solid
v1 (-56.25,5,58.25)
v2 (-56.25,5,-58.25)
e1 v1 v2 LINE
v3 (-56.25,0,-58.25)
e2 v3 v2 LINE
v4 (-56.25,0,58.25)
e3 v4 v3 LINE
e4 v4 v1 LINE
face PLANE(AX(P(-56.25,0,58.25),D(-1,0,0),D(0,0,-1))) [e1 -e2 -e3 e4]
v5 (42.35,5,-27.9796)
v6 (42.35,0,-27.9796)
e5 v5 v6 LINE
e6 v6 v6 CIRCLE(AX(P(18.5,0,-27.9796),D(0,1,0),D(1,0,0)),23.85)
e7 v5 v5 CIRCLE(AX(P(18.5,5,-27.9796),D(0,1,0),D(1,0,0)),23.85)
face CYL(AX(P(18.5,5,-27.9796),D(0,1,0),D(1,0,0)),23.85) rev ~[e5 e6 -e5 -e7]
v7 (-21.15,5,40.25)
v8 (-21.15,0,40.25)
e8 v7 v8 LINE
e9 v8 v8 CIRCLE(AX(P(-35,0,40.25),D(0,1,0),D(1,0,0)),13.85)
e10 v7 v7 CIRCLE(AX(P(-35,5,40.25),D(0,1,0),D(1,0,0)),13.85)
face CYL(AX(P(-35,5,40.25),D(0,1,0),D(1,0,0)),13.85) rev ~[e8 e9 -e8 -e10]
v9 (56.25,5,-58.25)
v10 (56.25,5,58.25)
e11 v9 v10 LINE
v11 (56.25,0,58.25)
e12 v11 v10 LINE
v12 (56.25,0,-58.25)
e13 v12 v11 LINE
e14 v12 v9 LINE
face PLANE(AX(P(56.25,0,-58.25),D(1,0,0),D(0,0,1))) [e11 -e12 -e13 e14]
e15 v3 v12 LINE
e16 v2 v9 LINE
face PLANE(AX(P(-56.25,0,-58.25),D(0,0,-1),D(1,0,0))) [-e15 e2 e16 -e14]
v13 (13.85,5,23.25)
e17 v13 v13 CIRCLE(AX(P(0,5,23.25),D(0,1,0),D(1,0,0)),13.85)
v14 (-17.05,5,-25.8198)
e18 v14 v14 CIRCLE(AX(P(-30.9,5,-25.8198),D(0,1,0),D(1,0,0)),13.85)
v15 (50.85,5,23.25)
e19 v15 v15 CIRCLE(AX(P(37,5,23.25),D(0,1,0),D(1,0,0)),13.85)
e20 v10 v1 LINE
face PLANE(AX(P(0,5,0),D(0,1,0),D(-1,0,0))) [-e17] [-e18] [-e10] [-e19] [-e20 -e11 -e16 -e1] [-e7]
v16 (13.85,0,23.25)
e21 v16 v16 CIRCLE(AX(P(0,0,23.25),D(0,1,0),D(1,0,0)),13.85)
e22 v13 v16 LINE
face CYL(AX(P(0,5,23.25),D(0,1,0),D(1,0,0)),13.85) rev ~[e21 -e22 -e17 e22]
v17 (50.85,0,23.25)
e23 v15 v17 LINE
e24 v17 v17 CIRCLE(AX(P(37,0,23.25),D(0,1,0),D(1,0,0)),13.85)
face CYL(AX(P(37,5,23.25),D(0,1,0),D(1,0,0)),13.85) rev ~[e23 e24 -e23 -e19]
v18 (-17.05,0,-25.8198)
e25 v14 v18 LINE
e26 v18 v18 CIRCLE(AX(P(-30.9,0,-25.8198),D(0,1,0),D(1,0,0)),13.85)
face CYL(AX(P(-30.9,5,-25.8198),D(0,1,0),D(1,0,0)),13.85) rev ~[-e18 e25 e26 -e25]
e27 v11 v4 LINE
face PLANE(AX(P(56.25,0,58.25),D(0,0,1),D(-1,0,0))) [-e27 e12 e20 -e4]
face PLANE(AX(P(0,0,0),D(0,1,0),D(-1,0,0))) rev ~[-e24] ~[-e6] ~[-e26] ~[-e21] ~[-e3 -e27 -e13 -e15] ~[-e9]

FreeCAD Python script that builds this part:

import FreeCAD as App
import Part
import Sketcher
Q = App.Units.Quantity

doc = App.newDocument("Part")
body = doc.addObject("PartDesign::Body", "Body")

# Sketch on XZ plane
sketch1 = body.newObject("Sketcher::SketchObject", "Sketch")
sketch1.AttachmentSupport = (doc.getObject("XZ_Plane"), [""])
sketch1.MapMode = "FlatFace"
sketch1.addGeometry([
    Part.LineSegment(App.Vector(-56.25, 58.25, 0), App.Vector(56.25, 58.25, 0)),
    Part.LineSegment(App.Vector(56.25, 58.25, 0), App.Vector(56.25, -58.25, 0)),
    Part.LineSegment(App.Vector(56.25, -58.25, 0), App.Vector(-56.25, -58.25, 0)),
    Part.LineSegment(App.Vector(-56.25, -58.25, 0), App.Vector(-56.25, 58.25, 0)),
], False)
sketch1.addConstraint([
    Sketcher.Constraint("Coincident", 0, 2, 1, 1),
    Sketcher.Constraint("Coincident", 1, 2, 2, 1),
    Sketcher.Constraint("Coincident", 2, 2, 3, 1),
    Sketcher.Constraint("Coincident", 3, 2, 0, 1),
    Sketcher.Constraint("Horizontal", 0),
    Sketcher.Constraint("Vertical", 1),
    Sketcher.Constraint("Horizontal", 2),
    Sketcher.Constraint("Vertical", 3),
    Sketcher.Constraint("Symmetric", 0, 2, 2, 2, -1, 1),
    Sketcher.Constraint("DistanceX", 0, 1, 0, 2, Q("112.5 mm")),
    Sketcher.Constraint("DistanceY", 1, 2, 1, 1, Q("116.5 mm")),
])
pad1 = body.newObject("PartDesign::Pad", "Pad")
pad1.Profile = sketch1
pad1.Length = 5
pad1.Reversed = True

# Sketch on XZ plane
sketch2 = body.newObject("Sketcher::SketchObject", "Sketch001")
sketch2.AttachmentSupport = (doc.getObject("XZ_Plane"), [""])
sketch2.MapMode = "FlatFace"
sketch2.AttachmentOffset = App.Placement(App.Vector(0, 0, -5), App.Rotation())
sketch2.addGeometry([
    Part.Circle(App.Vector(18.5, -27.9796, 0), App.Vector(0, 0, 1), 23.85),  # 0
    Part.Circle(App.Vector(37, 23.25, 0), App.Vector(0, 0, 1), 13.85),  # 1
    Part.Circle(App.Vector(-35, 40.25, 0), App.Vector(0, 0, 1), 13.85),  # 2
    Part.Circle(App.Vector(-30.9, -25.8198, 0), App.Vector(0, 0, 1), 13.85),  # 3
    Part.Circle(App.Vector(0, 23.25, 0), App.Vector(0, 0, 1), 13.85),  # 4
], False)
sketch2.addConstraint([
    Sketcher.Constraint("Equal", 1, 2),
    Sketcher.Constraint("Equal", 2, 3),
    Sketcher.Constraint("Equal", 3, 4),
    Sketcher.Constraint("PointOnObject", 4, 3, -2),
    Sketcher.Constraint("Horizontal", 1, 3, 4, 3),
    Sketcher.Constraint("Diameter", 0, Q("47.7 mm")),
    Sketcher.Constraint("Diameter", 1, Q("27.7 mm")),
    Sketcher.Constraint("DistanceX", -1, 1, 1, 3, Q("37 mm")),
    Sketcher.Constraint("DistanceX", 2, 3, -1, 1, Q("35 mm")),
    Sketcher.Constraint("DistanceX", -1, 1, 0, 3, Q("18.5 mm")),
    Sketcher.Constraint("DistanceX", 3, 3, -1, 1, Q("30.9 mm")),
    Sketcher.Constraint("DistanceY", 1, 3, 2, 3, Q("17 mm")),
    Sketcher.Constraint("DistanceY", -1, 1, 1, 3, Q("23.25 mm")),
    Sketcher.Constraint("DistanceY", 0, 3, -1, 1, Q("27.9796 mm")),
    Sketcher.Constraint("DistanceY", 3, 3, -1, 1, Q("25.8198 mm")),
])
pocket1 = body.newObject("PartDesign::Pocket", "Pocket")
pocket1.Profile = sketch2
pocket1.Length = 5
pocket1.Reversed = True

doc.recompute()
